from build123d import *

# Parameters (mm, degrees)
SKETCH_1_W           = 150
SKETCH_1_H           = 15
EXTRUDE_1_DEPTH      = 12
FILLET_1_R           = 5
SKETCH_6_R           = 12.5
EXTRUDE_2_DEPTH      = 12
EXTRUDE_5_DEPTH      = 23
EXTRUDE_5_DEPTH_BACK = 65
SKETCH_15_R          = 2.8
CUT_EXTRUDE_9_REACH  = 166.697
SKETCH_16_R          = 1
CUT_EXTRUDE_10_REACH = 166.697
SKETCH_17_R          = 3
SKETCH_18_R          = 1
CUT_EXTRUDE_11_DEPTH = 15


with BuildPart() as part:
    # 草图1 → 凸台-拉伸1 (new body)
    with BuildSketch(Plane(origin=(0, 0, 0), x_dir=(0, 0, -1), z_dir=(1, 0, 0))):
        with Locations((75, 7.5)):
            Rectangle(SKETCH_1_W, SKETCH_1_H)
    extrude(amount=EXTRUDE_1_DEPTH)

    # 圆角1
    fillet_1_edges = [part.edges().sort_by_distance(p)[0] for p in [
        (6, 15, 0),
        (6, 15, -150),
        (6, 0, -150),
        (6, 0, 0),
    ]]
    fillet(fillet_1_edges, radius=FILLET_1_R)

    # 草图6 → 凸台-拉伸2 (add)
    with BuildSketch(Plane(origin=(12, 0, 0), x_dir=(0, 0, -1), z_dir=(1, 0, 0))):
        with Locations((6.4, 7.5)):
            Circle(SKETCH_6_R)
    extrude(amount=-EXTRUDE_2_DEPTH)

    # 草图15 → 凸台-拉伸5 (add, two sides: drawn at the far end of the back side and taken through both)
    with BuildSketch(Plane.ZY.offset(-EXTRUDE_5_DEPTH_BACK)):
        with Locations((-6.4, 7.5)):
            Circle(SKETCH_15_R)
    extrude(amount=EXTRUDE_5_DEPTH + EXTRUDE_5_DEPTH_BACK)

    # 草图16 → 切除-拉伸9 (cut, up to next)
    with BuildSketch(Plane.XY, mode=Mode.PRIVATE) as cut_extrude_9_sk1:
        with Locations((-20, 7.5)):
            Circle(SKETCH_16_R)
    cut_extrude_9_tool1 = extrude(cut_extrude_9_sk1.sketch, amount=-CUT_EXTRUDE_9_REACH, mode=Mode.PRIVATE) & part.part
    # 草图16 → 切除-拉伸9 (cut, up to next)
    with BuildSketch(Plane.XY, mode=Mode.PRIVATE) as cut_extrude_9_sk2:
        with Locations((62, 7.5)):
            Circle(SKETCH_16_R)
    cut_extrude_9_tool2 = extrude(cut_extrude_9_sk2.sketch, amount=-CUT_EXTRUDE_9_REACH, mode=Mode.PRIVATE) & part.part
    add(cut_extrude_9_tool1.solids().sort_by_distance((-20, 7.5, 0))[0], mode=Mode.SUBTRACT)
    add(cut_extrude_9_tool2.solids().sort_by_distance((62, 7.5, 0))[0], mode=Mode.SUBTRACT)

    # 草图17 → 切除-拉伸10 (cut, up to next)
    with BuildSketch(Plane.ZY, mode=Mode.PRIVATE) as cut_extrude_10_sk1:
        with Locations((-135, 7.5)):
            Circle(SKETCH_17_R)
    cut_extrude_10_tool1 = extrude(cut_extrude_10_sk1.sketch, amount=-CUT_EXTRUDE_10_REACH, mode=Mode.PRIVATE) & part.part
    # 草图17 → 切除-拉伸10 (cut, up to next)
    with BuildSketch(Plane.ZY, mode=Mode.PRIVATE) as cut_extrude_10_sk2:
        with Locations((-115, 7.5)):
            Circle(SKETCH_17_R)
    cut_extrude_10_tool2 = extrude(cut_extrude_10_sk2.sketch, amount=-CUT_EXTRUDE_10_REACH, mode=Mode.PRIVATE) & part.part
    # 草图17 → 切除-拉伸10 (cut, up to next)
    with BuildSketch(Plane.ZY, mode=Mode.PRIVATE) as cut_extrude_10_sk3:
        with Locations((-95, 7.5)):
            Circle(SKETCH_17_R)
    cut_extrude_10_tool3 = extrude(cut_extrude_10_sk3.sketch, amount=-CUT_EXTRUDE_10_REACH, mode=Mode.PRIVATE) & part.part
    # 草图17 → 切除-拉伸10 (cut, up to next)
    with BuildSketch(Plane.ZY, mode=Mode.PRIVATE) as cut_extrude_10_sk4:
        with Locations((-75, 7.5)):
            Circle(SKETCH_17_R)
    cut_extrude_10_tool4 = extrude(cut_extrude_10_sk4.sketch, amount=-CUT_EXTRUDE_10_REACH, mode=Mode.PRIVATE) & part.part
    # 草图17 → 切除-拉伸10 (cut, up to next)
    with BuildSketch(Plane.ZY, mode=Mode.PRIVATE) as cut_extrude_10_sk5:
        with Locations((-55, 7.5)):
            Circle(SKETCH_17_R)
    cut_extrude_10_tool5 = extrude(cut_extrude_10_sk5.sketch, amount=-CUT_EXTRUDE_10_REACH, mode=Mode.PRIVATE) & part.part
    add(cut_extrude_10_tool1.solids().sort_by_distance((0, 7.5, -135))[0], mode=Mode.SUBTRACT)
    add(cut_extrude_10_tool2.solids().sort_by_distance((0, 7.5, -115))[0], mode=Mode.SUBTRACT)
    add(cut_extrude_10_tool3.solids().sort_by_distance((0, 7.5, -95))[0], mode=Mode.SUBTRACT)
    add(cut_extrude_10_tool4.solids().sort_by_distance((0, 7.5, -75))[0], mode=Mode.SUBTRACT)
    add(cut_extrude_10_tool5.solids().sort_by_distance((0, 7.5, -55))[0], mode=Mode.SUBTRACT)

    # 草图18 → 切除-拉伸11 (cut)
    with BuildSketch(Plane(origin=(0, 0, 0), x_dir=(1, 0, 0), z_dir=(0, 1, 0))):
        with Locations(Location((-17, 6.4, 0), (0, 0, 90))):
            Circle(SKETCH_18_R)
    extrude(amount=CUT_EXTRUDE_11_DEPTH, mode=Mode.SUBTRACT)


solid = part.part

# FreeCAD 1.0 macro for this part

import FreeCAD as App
import Part
import Sketcher
Q = App.Units.Quantity


def edges_at(feature, points):
    """Names of the edges that pass closest to the given points."""
    edges = feature.Shape.Edges
    near = lambda p: min(range(len(edges)), key=lambda i: edges[i].distToShape(Part.Vertex(*p))[0])
    return sorted({f"Edge{near(p) + 1}" for p in points})


def add_polygon(sketch, points):
    """Adds a closed chain of lines whose ends are joined by coincident constraints."""
    first, n = sketch.GeometryCount, len(points)
    for a, b in zip(points, points[1:] + points[:1]):
        sketch.addGeometry(Part.LineSegment(App.Vector(*a, 0), App.Vector(*b, 0)), False)
    for i in range(n):
        sketch.addConstraint(Sketcher.Constraint("Coincident", first + i, 2, first + (i + 1) % n, 1))

doc = App.newDocument("Part")
body = doc.addObject("PartDesign::Body", "Body")

# Sketch on YZ plane
sketch1 = body.newObject("Sketcher::SketchObject", "Sketch")
sketch1.AttachmentSupport = (doc.getObject("YZ_Plane"), [""])
sketch1.MapMode = "FlatFace"
add_polygon(sketch1, [(15, 0), (0, 0), (0, -150), (15, -150)])  # lines 0-3
sketch1.addConstraint(Sketcher.Constraint("Horizontal", 0))
sketch1.addConstraint(Sketcher.Constraint("Vertical", 1))
sketch1.addConstraint(Sketcher.Constraint("Horizontal", 2))
sketch1.addConstraint(Sketcher.Constraint("Vertical", 3))
sketch1.addConstraint(Sketcher.Constraint("Coincident", 0, 2, -1, 1))
sketch1.addConstraint(Sketcher.Constraint("DistanceX", 0, 2, 0, 1, Q("15 mm")))
sketch1.addConstraint(Sketcher.Constraint("DistanceY", 1, 2, 1, 1, Q("150 mm")))
pad1 = body.newObject("PartDesign::Pad", "Pad")
pad1.Profile = sketch1
pad1.Length = 12
doc.recompute()

fillet = body.newObject("PartDesign::Fillet", "Fillet")
fillet.Base = (pad1, edges_at(pad1, [
    (6, 15, 0),
    (6, 15, -150),
    (6, 0, -150),
    (6, 0, 0),
]))
fillet.Radius = 5

# Sketch on YZ plane
sketch2 = body.newObject("Sketcher::SketchObject", "Sketch001")
sketch2.AttachmentSupport = (doc.getObject("YZ_Plane"), [""])
sketch2.MapMode = "FlatFace"
sketch2.AttachmentOffset = App.Placement(App.Vector(0, 0, 12), App.Rotation())
sketch2.addGeometry(Part.Circle(App.Vector(7.5, -6.4, 0), App.Vector(0, 0, 1), 12.5), False)
sketch2.addConstraint(Sketcher.Constraint("Diameter", 0, Q("25 mm")))
sketch2.addConstraint(Sketcher.Constraint("DistanceX", -1, 1, 0, 3, Q("7.5 mm")))
sketch2.addConstraint(Sketcher.Constraint("DistanceY", 0, 3, -1, 1, Q("6.4 mm")))
pad2 = body.newObject("PartDesign::Pad", "Pad001")
pad2.Profile = sketch2
pad2.Length = 12
pad2.Reversed = True

# Sketch on YZ plane
sketch3 = body.newObject("Sketcher::SketchObject", "Sketch002")
sketch3.AttachmentSupport = (doc.getObject("YZ_Plane"), [""])
sketch3.MapMode = "FlatFace"
sketch3.addGeometry(Part.Circle(App.Vector(7.5, -6.4, 0), App.Vector(0, 0, 1), 2.8), False)
sketch3.addConstraint(Sketcher.Constraint("Diameter", 0, Q("5.6 mm")))
sketch3.addConstraint(Sketcher.Constraint("DistanceX", -1, 1, 0, 3, Q("7.5 mm")))
sketch3.addConstraint(Sketcher.Constraint("DistanceY", 0, 3, -1, 1, Q("6.4 mm")))
pad3 = body.newObject("PartDesign::Pad", "Pad002")
pad3.Profile = sketch3
pad3.Type = "TwoLengths"
pad3.Length = 23
pad3.Length2 = 65
pad3.Reversed = True

# Sketch on XY plane
sketch4 = body.newObject("Sketcher::SketchObject", "Sketch003")
sketch4.AttachmentSupport = (doc.getObject("XY_Plane"), [""])
sketch4.MapMode = "FlatFace"
sketch4.addGeometry(Part.Circle(App.Vector(-20, 7.5, 0), App.Vector(0, 0, 1), 1), False)
sketch4.addConstraint(Sketcher.Constraint("Diameter", 0, Q("2 mm")))
sketch4.addConstraint(Sketcher.Constraint("DistanceX", 0, 3, -1, 1, Q("20 mm")))
sketch4.addConstraint(Sketcher.Constraint("DistanceY", -1, 1, 0, 3, Q("7.5 mm")))
pocket1 = body.newObject("PartDesign::Pocket", "Pocket")
pocket1.Profile = sketch4
pocket1.Length = 9.2

# Sketch on XY plane
sketch5 = body.newObject("Sketcher::SketchObject", "Sketch004")
sketch5.AttachmentSupport = (doc.getObject("XY_Plane"), [""])
sketch5.MapMode = "FlatFace"
sketch5.addGeometry(Part.Circle(App.Vector(62, 7.5, 0), App.Vector(0, 0, 1), 1), False)
sketch5.addConstraint(Sketcher.Constraint("Diameter", 0, Q("2 mm")))
sketch5.addConstraint(Sketcher.Constraint("DistanceX", -1, 1, 0, 3, Q("62 mm")))
sketch5.addConstraint(Sketcher.Constraint("DistanceY", -1, 1, 0, 3, Q("7.5 mm")))
pocket2 = body.newObject("PartDesign::Pocket", "Pocket001")
pocket2.Profile = sketch5
pocket2.Length = 9.2

# Sketch on YZ plane
sketch6 = body.newObject("Sketcher::SketchObject", "Sketch005")
sketch6.AttachmentSupport = (doc.getObject("YZ_Plane"), [""])
sketch6.MapMode = "FlatFace"
sketch6.addGeometry(Part.Circle(App.Vector(7.5, -135, 0), App.Vector(0, 0, 1), 3), False)
sketch6.addConstraint(Sketcher.Constraint("Diameter", 0, Q("6 mm")))
sketch6.addConstraint(Sketcher.Constraint("DistanceY", 0, 3, -1, 1, Q("135 mm")))
sketch6.addConstraint(Sketcher.Constraint("DistanceX", -1, 1, 0, 3, Q("7.5 mm")))
pocket3 = body.newObject("PartDesign::Pocket", "Pocket002")
pocket3.Profile = sketch6
pocket3.Type = "UpToFirst"
pocket3.Reversed = True

# Sketch on YZ plane
sketch7 = body.newObject("Sketcher::SketchObject", "Sketch006")
sketch7.AttachmentSupport = (doc.getObject("YZ_Plane"), [""])
sketch7.MapMode = "FlatFace"
sketch7.addGeometry(Part.Circle(App.Vector(7.5, -115, 0), App.Vector(0, 0, 1), 3), False)
sketch7.addConstraint(Sketcher.Constraint("Diameter", 0, Q("6 mm")))
sketch7.addConstraint(Sketcher.Constraint("DistanceY", 0, 3, -1, 1, Q("115 mm")))
sketch7.addConstraint(Sketcher.Constraint("DistanceX", -1, 1, 0, 3, Q("7.5 mm")))
pocket4 = body.newObject("PartDesign::Pocket", "Pocket003")
pocket4.Profile = sketch7
pocket4.Type = "UpToFirst"
pocket4.Reversed = True

# Sketch on YZ plane
sketch8 = body.newObject("Sketcher::SketchObject", "Sketch007")
sketch8.AttachmentSupport = (doc.getObject("YZ_Plane"), [""])
sketch8.MapMode = "FlatFace"
sketch8.addGeometry(Part.Circle(App.Vector(7.5, -95, 0), App.Vector(0, 0, 1), 3), False)
sketch8.addConstraint(Sketcher.Constraint("Diameter", 0, Q("6 mm")))
sketch8.addConstraint(Sketcher.Constraint("DistanceY", 0, 3, -1, 1, Q("95 mm")))
sketch8.addConstraint(Sketcher.Constraint("DistanceX", -1, 1, 0, 3, Q("7.5 mm")))
pocket5 = body.newObject("PartDesign::Pocket", "Pocket004")
pocket5.Profile = sketch8
pocket5.Type = "UpToFirst"
pocket5.Reversed = True

# Sketch on YZ plane
sketch9 = body.newObject("Sketcher::SketchObject", "Sketch008")
sketch9.AttachmentSupport = (doc.getObject("YZ_Plane"), [""])
sketch9.MapMode = "FlatFace"
sketch9.addGeometry(Part.Circle(App.Vector(7.5, -75, 0), App.Vector(0, 0, 1), 3), False)
sketch9.addConstraint(Sketcher.Constraint("Diameter", 0, Q("6 mm")))
sketch9.addConstraint(Sketcher.Constraint("DistanceY", 0, 3, -1, 1, Q("75 mm")))
sketch9.addConstraint(Sketcher.Constraint("DistanceX", -1, 1, 0, 3, Q("7.5 mm")))
pocket6 = body.newObject("PartDesign::Pocket", "Pocket005")
pocket6.Profile = sketch9
pocket6.Type = "UpToFirst"
pocket6.Reversed = True

# Sketch on YZ plane
sketch10 = body.newObject("Sketcher::SketchObject", "Sketch009")
sketch10.AttachmentSupport = (doc.getObject("YZ_Plane"), [""])
sketch10.MapMode = "FlatFace"
sketch10.addGeometry(Part.Circle(App.Vector(7.5, -55, 0), App.Vector(0, 0, 1), 3), False)
sketch10.addConstraint(Sketcher.Constraint("Diameter", 0, Q("6 mm")))
sketch10.addConstraint(Sketcher.Constraint("DistanceY", 0, 3, -1, 1, Q("55 mm")))
sketch10.addConstraint(Sketcher.Constraint("DistanceX", -1, 1, 0, 3, Q("7.5 mm")))
pocket7 = body.newObject("PartDesign::Pocket", "Pocket006")
pocket7.Profile = sketch10
pocket7.Type = "UpToFirst"
pocket7.Reversed = True

# Sketch on XZ plane
sketch11 = body.newObject("Sketcher::SketchObject", "Sketch010")
sketch11.AttachmentSupport = (doc.getObject("XZ_Plane"), [""])
sketch11.MapMode = "FlatFace"
sketch11.addGeometry(Part.Circle(App.Vector(-17, -6.4, 0), App.Vector(0, 0, 1), 1), False)
sketch11.addConstraint(Sketcher.Constraint("Diameter", 0, Q("2 mm")))
sketch11.addConstraint(Sketcher.Constraint("DistanceX", 0, 3, -1, 1, Q("17 mm")))
sketch11.addConstraint(Sketcher.Constraint("DistanceY", 0, 3, -1, 1, Q("6.4 mm")))
pocket8 = body.newObject("PartDesign::Pocket", "Pocket007")
pocket8.Profile = sketch11
pocket8.Length = 15

doc.recompute()
